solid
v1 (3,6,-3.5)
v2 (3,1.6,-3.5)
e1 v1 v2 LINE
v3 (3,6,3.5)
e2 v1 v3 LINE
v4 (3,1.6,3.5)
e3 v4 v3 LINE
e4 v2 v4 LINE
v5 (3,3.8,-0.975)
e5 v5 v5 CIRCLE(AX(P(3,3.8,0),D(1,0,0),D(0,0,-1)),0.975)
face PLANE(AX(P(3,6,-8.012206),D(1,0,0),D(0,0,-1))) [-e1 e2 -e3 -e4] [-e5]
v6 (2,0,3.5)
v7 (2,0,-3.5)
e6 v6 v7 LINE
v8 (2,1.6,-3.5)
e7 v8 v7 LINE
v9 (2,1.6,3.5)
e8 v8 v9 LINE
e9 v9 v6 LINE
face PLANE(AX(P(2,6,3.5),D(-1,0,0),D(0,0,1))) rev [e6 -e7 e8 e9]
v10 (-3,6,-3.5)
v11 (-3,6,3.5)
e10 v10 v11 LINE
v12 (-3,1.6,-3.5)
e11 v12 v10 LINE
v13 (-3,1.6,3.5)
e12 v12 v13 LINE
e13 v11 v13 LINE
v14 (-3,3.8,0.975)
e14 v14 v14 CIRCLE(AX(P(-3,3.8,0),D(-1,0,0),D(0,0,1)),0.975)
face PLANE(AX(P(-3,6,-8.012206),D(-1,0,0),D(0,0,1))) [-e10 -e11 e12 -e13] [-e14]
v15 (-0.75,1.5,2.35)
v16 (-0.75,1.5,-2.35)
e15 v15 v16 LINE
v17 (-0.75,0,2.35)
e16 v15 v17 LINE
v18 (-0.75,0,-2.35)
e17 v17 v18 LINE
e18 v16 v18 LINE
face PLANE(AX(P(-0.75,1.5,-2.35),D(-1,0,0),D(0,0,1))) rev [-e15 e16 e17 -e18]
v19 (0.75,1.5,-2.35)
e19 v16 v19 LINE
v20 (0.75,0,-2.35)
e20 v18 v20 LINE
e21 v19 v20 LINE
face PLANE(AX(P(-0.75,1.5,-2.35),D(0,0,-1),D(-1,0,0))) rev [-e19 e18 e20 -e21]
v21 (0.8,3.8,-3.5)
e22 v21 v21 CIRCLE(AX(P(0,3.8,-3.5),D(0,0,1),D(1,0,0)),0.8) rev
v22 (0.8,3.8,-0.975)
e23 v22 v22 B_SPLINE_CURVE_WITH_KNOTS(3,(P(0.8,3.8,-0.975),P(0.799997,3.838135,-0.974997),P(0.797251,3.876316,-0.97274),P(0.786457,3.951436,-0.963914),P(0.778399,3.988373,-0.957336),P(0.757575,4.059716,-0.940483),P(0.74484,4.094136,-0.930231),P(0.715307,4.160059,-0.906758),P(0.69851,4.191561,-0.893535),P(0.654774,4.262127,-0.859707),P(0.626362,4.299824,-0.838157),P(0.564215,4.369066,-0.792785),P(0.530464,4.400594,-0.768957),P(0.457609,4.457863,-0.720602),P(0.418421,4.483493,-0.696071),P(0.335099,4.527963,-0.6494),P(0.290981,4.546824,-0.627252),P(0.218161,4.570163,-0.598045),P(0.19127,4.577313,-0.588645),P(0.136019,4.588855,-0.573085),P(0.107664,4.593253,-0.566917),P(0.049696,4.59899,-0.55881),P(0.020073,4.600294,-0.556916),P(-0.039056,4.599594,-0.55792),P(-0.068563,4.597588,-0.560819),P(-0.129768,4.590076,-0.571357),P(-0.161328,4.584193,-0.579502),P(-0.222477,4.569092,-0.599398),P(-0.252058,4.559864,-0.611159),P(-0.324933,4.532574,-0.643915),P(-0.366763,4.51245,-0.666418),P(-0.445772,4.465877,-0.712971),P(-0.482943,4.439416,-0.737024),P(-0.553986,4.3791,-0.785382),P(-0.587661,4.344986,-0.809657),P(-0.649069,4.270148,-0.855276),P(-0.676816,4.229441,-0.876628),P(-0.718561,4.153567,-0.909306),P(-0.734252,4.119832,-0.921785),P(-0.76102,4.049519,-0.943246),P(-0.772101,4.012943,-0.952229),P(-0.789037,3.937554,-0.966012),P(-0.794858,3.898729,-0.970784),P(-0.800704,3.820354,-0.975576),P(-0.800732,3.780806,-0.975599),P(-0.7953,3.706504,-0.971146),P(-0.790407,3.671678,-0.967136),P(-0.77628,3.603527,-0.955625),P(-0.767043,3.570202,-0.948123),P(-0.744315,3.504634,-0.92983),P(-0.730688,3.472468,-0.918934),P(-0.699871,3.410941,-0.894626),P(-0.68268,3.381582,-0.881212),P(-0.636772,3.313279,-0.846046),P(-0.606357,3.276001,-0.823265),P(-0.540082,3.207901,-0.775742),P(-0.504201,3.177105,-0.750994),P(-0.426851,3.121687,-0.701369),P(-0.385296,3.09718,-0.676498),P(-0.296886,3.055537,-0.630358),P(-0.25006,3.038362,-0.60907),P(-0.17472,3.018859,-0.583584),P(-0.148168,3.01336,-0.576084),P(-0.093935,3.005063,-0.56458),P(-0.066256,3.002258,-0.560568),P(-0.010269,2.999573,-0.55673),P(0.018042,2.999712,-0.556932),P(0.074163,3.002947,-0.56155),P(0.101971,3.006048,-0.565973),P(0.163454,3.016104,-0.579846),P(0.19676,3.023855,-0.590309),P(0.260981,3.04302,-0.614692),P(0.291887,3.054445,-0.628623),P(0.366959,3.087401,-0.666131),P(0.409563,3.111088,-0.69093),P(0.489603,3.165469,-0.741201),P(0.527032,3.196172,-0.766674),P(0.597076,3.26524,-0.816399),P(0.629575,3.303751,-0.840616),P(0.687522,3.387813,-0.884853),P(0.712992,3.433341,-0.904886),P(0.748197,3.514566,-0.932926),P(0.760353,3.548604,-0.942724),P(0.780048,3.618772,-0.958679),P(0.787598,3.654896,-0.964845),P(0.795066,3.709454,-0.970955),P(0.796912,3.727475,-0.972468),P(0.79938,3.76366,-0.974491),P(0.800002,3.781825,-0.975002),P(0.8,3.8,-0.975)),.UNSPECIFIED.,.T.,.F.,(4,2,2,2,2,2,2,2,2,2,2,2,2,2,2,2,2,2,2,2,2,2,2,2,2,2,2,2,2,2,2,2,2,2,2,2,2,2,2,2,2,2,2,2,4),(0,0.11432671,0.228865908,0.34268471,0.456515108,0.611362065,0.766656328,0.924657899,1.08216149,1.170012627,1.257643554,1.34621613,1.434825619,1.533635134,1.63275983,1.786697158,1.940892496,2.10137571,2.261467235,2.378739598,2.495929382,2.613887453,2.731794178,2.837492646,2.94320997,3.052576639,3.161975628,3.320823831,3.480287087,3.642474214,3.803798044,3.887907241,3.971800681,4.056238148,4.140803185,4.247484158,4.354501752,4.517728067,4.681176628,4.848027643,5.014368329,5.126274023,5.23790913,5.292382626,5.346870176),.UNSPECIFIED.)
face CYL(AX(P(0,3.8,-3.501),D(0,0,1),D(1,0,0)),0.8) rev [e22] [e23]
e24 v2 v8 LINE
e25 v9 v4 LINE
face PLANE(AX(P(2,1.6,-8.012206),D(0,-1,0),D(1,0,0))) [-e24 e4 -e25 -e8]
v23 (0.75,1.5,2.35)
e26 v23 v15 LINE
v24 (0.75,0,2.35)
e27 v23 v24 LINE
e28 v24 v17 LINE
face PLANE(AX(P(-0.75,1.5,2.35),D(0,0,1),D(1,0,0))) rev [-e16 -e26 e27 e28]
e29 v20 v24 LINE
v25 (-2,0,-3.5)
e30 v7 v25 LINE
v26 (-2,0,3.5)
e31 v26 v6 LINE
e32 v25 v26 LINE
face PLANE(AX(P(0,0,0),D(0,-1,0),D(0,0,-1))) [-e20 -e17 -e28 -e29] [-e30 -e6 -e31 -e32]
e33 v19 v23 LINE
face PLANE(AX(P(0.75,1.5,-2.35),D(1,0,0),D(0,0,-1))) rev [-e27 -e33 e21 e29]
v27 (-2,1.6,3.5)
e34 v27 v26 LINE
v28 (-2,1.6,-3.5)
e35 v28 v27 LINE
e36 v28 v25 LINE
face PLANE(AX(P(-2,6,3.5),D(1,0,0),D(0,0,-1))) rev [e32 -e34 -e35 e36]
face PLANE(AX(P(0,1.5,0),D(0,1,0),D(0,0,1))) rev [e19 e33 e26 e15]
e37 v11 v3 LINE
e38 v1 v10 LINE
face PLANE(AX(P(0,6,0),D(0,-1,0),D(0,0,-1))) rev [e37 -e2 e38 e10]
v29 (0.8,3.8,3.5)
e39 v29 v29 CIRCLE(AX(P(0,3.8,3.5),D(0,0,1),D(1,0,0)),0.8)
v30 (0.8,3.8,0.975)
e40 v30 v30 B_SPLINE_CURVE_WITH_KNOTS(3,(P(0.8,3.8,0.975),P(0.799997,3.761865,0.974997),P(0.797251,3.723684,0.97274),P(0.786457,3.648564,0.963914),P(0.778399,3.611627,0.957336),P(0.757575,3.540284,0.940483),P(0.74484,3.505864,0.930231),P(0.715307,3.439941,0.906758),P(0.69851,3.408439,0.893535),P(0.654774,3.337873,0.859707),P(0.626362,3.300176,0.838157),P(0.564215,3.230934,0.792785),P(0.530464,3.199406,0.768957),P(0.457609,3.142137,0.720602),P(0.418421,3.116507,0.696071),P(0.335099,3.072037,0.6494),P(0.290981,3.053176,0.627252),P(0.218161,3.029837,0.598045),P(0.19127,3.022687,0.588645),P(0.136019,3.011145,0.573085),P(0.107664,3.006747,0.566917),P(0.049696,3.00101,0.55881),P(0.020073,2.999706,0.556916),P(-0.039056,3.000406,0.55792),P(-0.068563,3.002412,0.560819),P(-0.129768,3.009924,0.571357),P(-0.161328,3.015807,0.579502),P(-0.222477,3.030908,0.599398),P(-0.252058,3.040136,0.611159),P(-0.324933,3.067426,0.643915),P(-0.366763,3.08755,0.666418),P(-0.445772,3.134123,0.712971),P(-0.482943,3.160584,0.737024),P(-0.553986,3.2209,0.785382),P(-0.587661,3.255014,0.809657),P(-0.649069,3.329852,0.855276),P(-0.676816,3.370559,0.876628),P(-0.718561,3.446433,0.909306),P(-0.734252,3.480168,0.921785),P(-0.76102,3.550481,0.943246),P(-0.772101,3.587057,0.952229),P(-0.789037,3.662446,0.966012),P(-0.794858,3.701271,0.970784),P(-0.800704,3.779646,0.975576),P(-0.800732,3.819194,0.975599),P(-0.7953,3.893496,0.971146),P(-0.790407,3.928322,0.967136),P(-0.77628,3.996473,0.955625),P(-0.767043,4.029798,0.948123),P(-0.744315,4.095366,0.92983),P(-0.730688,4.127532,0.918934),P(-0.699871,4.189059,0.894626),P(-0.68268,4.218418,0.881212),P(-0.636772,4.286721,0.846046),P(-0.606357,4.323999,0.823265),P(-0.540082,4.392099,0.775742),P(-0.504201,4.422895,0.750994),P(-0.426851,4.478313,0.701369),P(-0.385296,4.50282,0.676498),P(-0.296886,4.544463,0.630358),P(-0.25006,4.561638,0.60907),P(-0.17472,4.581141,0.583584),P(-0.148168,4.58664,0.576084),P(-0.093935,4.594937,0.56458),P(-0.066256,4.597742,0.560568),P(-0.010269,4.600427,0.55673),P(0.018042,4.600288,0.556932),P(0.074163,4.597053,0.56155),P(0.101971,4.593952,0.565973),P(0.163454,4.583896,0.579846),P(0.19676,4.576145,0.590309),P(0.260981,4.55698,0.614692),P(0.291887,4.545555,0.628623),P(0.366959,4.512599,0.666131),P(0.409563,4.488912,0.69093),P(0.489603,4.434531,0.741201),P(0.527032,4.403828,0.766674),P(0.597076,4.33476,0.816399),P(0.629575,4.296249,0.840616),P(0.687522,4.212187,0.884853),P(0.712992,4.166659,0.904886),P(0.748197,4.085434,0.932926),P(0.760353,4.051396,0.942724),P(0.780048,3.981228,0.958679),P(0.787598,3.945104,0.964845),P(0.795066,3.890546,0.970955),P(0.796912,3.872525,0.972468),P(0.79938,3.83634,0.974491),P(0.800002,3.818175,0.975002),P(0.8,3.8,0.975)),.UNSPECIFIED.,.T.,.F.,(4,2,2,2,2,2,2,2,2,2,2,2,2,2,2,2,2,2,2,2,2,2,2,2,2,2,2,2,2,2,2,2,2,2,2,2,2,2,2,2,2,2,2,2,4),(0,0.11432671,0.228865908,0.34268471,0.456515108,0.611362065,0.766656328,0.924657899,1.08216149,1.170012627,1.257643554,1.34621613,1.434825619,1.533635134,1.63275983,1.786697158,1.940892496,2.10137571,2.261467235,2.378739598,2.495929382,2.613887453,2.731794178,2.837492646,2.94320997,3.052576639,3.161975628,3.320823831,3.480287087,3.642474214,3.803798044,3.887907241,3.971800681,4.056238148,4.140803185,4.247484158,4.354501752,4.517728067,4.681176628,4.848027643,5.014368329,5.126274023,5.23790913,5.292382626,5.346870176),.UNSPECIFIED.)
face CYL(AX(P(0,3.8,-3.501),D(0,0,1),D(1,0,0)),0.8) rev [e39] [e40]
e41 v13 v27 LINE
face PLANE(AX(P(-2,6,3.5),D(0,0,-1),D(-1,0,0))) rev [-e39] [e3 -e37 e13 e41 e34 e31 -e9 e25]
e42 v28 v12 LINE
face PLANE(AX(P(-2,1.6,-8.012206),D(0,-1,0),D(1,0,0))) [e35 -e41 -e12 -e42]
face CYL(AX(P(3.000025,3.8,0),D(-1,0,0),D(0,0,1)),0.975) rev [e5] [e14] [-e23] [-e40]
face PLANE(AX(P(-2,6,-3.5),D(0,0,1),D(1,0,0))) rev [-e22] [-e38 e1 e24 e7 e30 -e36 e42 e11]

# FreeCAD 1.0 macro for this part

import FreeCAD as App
import Part
import Sketcher
from FreeCAD import Vector
Q = App.Units.Quantity

doc = App.newDocument("Part")
body = doc.addObject("PartDesign::Body", "Body")

sketch1 = body.newObject("Sketcher::SketchObject", "Sketch")
sketch1.AttachmentSupport = (doc.getObject("XZ_Plane"), [""])
sketch1.MapMode = "FlatFace"
sketch1.addGeometry(Part.LineSegment(Vector(-2, -3.5, 0), Vector(-2, 3.5, 0)), False)
sketch1.addGeometry(Part.LineSegment(Vector(-2, 3.5, 0), Vector(2, 3.5, 0)), False)
sketch1.addGeometry(Part.LineSegment(Vector(2, 3.5, 0), Vector(2, -3.5, 0)), False)
sketch1.addGeometry(Part.LineSegment(Vector(2, -3.5, 0), Vector(-2, -3.5, 0)), False)
sketch1.addConstraint(Sketcher.Constraint("Coincident", 0, 2, 1, 1))
sketch1.addConstraint(Sketcher.Constraint("Coincident", 1, 2, 2, 1))
sketch1.addConstraint(Sketcher.Constraint("Coincident", 2, 2, 3, 1))
sketch1.addConstraint(Sketcher.Constraint("Coincident", 3, 2, 0, 1))
sketch1.addConstraint(Sketcher.Constraint("Vertical", 0))
sketch1.addConstraint(Sketcher.Constraint("Horizontal", 1))
sketch1.addConstraint(Sketcher.Constraint("Vertical", 2))
sketch1.addConstraint(Sketcher.Constraint("Horizontal", 3))
sketch1.addConstraint(Sketcher.Constraint("Symmetric", 0, 2, 2, 2, -1, 1))
sketch1.addConstraint(Sketcher.Constraint("DistanceX", 1, 1, 1, 2, Q("4 mm")))
sketch1.addConstraint(Sketcher.Constraint("DistanceY", 0, 1, 0, 2, Q("7 mm")))
pad1 = body.newObject("PartDesign::Pad", "Pad")
pad1.Profile = sketch1
pad1.Length = 6
pad1.Reversed = True

sketch2 = body.newObject("Sketcher::SketchObject", "Sketch001")
sketch2.AttachmentSupport = (doc.getObject("XZ_Plane"), [""])
sketch2.MapMode = "FlatFace"
sketch2.addGeometry(Part.LineSegment(Vector(-0.8, 2.4, 0), Vector(-0.8, -2.4, 0)), False)
sketch2.addGeometry(Part.LineSegment(Vector(-0.8, -2.4, 0), Vector(0.8, -2.4, 0)), False)
sketch2.addGeometry(Part.LineSegment(Vector(0.8, -2.4, 0), Vector(0.8, 2.4, 0)), False)
sketch2.addGeometry(Part.LineSegment(Vector(0.8, 2.4, 0), Vector(-0.8, 2.4, 0)), False)
sketch2.addConstraint(Sketcher.Constraint("Coincident", 0, 2, 1, 1))
sketch2.addConstraint(Sketcher.Constraint("Coincident", 1, 2, 2, 1))
sketch2.addConstraint(Sketcher.Constraint("Coincident", 2, 2, 3, 1))
sketch2.addConstraint(Sketcher.Constraint("Coincident", 3, 2, 0, 1))
sketch2.addConstraint(Sketcher.Constraint("Vertical", 0))
sketch2.addConstraint(Sketcher.Constraint("Horizontal", 1))
sketch2.addConstraint(Sketcher.Constraint("Vertical", 2))
sketch2.addConstraint(Sketcher.Constraint("Horizontal", 3))
sketch2.addConstraint(Sketcher.Constraint("Symmetric", 0, 2, 2, 2, -1, 1))
sketch2.addConstraint(Sketcher.Constraint("DistanceX", 1, 1, 1, 2, Q("1.5 mm")))
sketch2.addConstraint(Sketcher.Constraint("DistanceY", 0, 2, 0, 1, Q("4.7 mm")))
pocket1 = body.newObject("PartDesign::Pocket", "Pocket")
pocket1.Profile = sketch2
pocket1.Length = 1.5

sketch3 = body.newObject("Sketcher::SketchObject", "Sketch002")
sketch3.AttachmentSupport = (doc.getObject("XY_Plane"), [""])
sketch3.MapMode = "FlatFace"
sketch3.AttachmentOffset = App.Placement(Vector(0, 0, 3.5), App.Rotation())
sketch3.addGeometry(Part.Circle(Vector(0, 3.8, 0), Vector(0, 0, 1), 0.8), False)
sketch3.addConstraint(Sketcher.Constraint("PointOnObject", 0, 3, -2))
sketch3.addConstraint(Sketcher.Constraint("Diameter", 0, Q("1.6 mm")))
sketch3.addConstraint(Sketcher.Constraint("DistanceY", -1, 1, 0, 3, Q("3.8 mm")))
pocket2 = body.newObject("PartDesign::Pocket", "Pocket001")
pocket2.Profile = sketch3
pocket2.Type = "UpToFirst"

sketch4 = body.newObject("Sketcher::SketchObject", "Sketch003")
sketch4.AttachmentSupport = (doc.getObject("XY_Plane"), [""])
sketch4.MapMode = "FlatFace"
sketch4.AttachmentOffset = App.Placement(Vector(0, 0, 3.5), App.Rotation())
sketch4.addGeometry(Part.LineSegment(Vector(2, 6, 0), Vector(2, 1.6, 0)), False)
sketch4.addGeometry(Part.LineSegment(Vector(2, 1.6, 0), Vector(3, 1.6, 0)), False)
sketch4.addGeometry(Part.LineSegment(Vector(3, 1.6, 0), Vector(3, 6, 0)), False)
sketch4.addGeometry(Part.LineSegment(Vector(3, 6, 0), Vector(2, 6, 0)), False)
sketch4.addGeometry(Part.LineSegment(Vector(-3, 6, 0), Vector(-3, 1.6, 0)), False)
sketch4.addGeometry(Part.LineSegment(Vector(-3, 1.6, 0), Vector(-2, 1.6, 0)), False)
sketch4.addGeometry(Part.LineSegment(Vector(-2, 1.6, 0), Vector(-2, 6, 0)), False)
sketch4.addGeometry(Part.LineSegment(Vector(-2, 6, 0), Vector(-3, 6, 0)), False)
sketch4.addConstraint(Sketcher.Constraint("Coincident", 0, 2, 1, 1))
sketch4.addConstraint(Sketcher.Constraint("Coincident", 1, 2, 2, 1))
sketch4.addConstraint(Sketcher.Constraint("Coincident", 2, 2, 3, 1))
sketch4.addConstraint(Sketcher.Constraint("Coincident", 3, 2, 0, 1))
sketch4.addConstraint(Sketcher.Constraint("Coincident", 4, 2, 5, 1))
sketch4.addConstraint(Sketcher.Constraint("Coincident", 5, 2, 6, 1))
sketch4.addConstraint(Sketcher.Constraint("Coincident", 6, 2, 7, 1))
sketch4.addConstraint(Sketcher.Constraint("Coincident", 7, 2, 4, 1))
sketch4.addConstraint(Sketcher.Constraint("Vertical", 0))
sketch4.addConstraint(Sketcher.Constraint("Horizontal", 1))
sketch4.addConstraint(Sketcher.Constraint("Vertical", 2))
sketch4.addConstraint(Sketcher.Constraint("Horizontal", 3))
sketch4.addConstraint(Sketcher.Constraint("Vertical", 4))
sketch4.addConstraint(Sketcher.Constraint("Horizontal", 5))
sketch4.addConstraint(Sketcher.Constraint("Vertical", 6))
sketch4.addConstraint(Sketcher.Constraint("Horizontal", 7))
sketch4.addConstraint(Sketcher.Constraint("Symmetric", 1, 2, 4, 2, -2))
sketch4.addConstraint(Sketcher.Constraint("Symmetric", 3, 2, 6, 2, -2))
sketch4.addConstraint(Sketcher.Constraint("DistanceX", 1, 1, 1, 2, Q("1 mm")))
sketch4.addConstraint(Sketcher.Constraint("DistanceY", 0, 2, 0, 1, Q("4.4 mm")))
sketch4.addConstraint(Sketcher.Constraint("DistanceX", -1, 1, 0, 2, Q("2 mm")))
sketch4.addConstraint(Sketcher.Constraint("DistanceY", -1, 1, 2, 2, Q("6 mm")))
pad2 = body.newObject("PartDesign::Pad", "Pad001")
pad2.Profile = sketch4
pad2.Length = 7
pad2.Reversed = True

sketch5 = body.newObject("Sketcher::SketchObject", "Sketch004")
sketch5.AttachmentSupport = (doc.getObject("YZ_Plane"), [""])
sketch5.MapMode = "FlatFace"
sketch5.AttachmentOffset = App.Placement(Vector(0, 0, -3), App.Rotation())
sketch5.addGeometry(Part.Circle(Vector(3.8, 0, 0), Vector(0, 0, 1), 1), False)
sketch5.addConstraint(Sketcher.Constraint("PointOnObject", 0, 3, -1))
sketch5.addConstraint(Sketcher.Constraint("Diameter", 0, Q("1.95 mm")))
sketch5.addConstraint(Sketcher.Constraint("DistanceX", -1, 1, 0, 3, Q("3.8 mm")))
pocket3 = body.newObject("PartDesign::Pocket", "Pocket002")
pocket3.Profile = sketch5
pocket3.Type = "ThroughAll"
pocket3.Reversed = True

doc.recompute()
